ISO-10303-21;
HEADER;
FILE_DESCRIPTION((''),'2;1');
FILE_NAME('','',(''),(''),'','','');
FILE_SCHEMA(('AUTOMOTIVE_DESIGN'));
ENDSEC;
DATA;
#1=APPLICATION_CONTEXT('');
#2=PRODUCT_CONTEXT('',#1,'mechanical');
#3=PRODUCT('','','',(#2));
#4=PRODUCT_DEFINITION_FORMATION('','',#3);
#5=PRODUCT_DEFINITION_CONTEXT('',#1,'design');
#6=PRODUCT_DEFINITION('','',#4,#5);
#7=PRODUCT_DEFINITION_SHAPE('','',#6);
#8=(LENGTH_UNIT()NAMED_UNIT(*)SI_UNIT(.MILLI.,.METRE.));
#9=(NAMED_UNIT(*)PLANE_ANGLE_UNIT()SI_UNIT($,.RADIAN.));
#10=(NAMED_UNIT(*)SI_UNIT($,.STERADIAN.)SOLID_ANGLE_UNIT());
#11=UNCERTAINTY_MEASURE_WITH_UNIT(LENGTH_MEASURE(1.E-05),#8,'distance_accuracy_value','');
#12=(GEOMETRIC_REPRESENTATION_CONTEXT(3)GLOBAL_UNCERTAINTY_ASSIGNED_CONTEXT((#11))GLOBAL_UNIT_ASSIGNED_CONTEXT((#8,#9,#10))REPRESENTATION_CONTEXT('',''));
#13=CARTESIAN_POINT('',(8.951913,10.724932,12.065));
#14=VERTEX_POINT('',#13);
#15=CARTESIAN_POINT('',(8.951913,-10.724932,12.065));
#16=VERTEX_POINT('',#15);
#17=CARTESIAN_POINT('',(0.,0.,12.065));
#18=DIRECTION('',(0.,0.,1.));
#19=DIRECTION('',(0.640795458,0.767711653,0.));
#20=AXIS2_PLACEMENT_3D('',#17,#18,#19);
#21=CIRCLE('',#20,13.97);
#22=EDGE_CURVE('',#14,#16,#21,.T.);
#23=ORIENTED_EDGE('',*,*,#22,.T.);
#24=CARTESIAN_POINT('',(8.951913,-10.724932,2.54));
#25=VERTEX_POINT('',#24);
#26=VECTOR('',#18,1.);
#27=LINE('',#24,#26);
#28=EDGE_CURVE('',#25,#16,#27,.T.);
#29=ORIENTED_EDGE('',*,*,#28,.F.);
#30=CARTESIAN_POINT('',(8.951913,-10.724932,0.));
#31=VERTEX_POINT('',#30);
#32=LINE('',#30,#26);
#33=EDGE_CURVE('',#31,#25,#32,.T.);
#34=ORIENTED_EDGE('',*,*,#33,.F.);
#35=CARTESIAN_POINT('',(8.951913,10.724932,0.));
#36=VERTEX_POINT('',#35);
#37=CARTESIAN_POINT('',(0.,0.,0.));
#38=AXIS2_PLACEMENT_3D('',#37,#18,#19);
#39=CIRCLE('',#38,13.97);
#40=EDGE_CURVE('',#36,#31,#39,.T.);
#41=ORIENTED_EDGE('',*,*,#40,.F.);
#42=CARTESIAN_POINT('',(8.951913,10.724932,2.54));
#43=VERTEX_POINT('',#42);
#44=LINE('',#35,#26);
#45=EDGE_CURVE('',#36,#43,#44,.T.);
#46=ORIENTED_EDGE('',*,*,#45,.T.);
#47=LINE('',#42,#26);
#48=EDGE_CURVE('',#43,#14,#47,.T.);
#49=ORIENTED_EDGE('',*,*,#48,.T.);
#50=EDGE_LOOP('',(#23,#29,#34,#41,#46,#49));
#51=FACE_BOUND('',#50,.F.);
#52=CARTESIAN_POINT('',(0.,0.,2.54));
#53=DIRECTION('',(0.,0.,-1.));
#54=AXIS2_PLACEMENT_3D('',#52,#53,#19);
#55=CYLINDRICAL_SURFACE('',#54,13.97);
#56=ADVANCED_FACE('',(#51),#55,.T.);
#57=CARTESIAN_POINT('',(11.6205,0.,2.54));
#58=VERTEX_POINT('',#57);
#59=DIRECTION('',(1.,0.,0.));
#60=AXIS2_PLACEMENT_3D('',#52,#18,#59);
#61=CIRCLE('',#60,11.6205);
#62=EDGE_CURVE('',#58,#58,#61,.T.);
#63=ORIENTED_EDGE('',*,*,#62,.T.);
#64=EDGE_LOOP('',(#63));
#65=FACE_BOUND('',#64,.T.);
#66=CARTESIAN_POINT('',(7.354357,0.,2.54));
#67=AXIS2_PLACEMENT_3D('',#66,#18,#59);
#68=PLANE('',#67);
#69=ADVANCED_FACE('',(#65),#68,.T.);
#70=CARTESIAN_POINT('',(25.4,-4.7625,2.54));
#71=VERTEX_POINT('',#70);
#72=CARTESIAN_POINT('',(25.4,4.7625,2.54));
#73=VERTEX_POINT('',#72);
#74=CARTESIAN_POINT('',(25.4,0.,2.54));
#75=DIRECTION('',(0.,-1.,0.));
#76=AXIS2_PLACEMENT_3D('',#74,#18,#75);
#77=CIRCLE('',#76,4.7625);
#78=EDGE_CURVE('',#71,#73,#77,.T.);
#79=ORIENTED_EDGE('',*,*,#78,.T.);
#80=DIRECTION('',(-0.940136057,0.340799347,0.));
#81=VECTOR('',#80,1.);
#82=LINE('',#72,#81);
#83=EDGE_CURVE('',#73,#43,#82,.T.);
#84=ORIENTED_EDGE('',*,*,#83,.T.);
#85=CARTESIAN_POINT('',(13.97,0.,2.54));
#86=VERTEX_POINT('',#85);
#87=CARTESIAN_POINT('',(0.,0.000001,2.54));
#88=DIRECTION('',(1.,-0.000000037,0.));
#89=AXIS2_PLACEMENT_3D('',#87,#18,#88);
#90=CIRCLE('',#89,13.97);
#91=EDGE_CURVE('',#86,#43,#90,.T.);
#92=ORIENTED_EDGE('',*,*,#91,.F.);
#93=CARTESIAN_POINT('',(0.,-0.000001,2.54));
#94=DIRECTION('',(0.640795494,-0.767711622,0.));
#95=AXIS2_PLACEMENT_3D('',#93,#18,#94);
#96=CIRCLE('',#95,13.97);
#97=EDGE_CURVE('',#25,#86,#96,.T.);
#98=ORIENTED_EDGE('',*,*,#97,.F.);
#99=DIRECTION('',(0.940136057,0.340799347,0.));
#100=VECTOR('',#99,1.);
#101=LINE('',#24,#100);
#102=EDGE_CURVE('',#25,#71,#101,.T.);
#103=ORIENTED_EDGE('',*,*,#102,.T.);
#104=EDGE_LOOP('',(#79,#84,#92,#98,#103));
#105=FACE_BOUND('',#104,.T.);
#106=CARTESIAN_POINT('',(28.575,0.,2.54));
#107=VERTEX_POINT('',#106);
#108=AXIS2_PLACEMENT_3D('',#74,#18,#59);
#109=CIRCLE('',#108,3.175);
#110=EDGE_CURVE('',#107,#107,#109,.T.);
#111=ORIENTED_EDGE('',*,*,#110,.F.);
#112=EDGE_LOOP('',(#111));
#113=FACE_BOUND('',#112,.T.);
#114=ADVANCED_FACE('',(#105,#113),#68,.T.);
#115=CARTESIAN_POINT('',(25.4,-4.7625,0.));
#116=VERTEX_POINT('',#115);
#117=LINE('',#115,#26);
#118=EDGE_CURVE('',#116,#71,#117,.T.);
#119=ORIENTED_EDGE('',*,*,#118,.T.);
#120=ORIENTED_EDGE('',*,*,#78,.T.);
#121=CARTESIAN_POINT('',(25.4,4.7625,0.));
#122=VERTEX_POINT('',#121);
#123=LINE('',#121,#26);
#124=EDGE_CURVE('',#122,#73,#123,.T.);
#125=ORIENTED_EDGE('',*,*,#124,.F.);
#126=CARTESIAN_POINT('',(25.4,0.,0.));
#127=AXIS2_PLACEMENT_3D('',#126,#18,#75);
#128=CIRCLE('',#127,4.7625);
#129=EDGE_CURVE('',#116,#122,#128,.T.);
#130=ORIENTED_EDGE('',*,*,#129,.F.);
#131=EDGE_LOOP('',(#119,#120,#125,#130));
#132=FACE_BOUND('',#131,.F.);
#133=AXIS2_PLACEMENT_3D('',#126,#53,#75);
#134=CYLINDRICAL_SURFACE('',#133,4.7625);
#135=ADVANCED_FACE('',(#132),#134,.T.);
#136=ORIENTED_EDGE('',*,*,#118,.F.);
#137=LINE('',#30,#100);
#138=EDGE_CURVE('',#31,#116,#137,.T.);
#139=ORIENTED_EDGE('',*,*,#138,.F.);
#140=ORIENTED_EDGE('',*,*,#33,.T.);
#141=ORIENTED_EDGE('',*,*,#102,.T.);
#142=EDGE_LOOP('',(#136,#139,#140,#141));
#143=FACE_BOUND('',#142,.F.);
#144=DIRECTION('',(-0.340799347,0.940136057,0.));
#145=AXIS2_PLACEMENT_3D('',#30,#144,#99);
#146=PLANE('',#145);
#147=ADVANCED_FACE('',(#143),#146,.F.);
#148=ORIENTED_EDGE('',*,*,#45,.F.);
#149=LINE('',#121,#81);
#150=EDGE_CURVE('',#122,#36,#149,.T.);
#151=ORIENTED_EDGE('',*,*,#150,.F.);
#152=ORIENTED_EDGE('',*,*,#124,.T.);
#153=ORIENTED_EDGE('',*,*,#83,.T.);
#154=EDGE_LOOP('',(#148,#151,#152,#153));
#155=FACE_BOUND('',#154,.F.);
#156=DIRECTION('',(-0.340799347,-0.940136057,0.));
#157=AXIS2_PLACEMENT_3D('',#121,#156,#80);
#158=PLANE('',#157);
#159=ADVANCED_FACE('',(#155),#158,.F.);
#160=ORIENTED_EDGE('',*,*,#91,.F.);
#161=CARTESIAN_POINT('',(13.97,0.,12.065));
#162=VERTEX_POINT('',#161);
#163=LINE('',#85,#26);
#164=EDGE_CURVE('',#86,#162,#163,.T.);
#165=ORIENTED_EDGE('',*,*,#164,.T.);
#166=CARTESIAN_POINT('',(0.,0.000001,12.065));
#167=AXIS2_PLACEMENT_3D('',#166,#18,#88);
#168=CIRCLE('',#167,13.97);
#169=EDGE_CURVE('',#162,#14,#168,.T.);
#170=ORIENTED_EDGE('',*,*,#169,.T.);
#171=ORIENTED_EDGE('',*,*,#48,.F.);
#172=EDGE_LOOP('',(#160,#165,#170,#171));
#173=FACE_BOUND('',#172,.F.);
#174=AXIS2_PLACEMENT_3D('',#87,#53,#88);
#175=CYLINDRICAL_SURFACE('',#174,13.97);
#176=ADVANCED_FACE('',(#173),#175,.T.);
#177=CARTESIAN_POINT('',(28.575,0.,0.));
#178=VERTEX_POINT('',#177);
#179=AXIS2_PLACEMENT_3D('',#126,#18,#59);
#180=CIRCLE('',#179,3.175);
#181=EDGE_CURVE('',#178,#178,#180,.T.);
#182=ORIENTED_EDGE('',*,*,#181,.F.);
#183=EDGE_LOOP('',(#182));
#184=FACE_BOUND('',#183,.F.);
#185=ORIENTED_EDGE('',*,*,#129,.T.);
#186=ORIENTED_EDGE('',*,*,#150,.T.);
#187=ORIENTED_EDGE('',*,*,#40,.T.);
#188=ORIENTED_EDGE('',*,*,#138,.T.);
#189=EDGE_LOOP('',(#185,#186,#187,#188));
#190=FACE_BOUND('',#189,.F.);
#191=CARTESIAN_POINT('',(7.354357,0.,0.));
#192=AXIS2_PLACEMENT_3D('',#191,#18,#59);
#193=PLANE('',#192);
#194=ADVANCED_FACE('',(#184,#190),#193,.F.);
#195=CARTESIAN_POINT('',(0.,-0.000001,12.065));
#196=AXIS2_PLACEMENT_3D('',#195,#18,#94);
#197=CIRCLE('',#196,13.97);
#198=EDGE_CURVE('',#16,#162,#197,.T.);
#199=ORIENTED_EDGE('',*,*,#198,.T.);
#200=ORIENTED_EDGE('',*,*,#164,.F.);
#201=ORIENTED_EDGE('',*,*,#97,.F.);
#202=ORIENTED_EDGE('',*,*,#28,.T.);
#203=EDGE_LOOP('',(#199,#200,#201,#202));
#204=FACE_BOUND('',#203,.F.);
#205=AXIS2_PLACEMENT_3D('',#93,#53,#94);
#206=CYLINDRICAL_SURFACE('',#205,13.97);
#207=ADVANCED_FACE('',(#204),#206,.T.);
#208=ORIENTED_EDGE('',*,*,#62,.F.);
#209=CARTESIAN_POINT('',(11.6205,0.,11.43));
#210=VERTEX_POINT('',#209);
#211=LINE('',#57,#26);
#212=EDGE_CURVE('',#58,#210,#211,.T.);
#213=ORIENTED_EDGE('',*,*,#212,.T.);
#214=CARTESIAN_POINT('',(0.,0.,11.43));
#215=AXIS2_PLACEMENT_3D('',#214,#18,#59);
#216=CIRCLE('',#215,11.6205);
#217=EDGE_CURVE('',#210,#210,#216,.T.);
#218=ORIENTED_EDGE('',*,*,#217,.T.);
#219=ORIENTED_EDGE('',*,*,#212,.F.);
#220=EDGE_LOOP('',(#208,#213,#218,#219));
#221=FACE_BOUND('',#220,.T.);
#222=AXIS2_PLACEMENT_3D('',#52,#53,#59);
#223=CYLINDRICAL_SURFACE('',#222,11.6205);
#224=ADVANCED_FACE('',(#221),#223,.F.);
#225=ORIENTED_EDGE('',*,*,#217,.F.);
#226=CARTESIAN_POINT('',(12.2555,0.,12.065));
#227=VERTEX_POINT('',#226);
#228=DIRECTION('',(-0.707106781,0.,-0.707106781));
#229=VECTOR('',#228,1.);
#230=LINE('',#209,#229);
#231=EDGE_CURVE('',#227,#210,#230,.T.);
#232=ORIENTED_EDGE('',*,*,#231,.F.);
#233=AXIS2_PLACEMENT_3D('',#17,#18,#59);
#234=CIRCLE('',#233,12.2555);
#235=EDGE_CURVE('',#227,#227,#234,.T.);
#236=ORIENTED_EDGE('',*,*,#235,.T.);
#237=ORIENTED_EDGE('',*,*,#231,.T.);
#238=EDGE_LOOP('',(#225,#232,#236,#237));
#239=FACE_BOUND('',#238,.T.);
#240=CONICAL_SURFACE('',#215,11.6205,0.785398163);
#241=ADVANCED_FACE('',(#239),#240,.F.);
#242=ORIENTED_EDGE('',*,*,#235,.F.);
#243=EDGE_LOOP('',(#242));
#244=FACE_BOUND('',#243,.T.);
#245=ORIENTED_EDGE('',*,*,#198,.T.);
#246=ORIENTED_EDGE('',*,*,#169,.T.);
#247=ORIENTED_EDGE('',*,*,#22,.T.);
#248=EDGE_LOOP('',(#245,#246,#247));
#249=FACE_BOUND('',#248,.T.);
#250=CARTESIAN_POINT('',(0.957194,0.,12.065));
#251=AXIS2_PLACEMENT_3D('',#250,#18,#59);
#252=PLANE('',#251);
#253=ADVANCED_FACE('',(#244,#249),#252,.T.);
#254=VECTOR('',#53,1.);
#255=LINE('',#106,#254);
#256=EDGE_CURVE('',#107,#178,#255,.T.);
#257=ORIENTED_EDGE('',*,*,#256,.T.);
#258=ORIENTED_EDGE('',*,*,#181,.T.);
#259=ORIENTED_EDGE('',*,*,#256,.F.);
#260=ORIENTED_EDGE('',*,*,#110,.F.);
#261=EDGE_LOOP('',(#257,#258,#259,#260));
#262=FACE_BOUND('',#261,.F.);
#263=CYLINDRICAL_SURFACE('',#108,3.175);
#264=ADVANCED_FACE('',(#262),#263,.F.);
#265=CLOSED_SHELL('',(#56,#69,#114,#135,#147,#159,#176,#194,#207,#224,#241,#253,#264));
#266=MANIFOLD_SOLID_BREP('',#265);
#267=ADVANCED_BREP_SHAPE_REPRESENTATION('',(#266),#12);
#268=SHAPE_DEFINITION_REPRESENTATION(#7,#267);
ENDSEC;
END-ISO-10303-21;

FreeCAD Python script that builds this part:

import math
import FreeCAD as App
import Part
import Sketcher

V = App.Vector
Q = App.Units.Quantity


def edges_at(feature, points):
    """Names of the edges that pass closest to the given points."""
    edges = feature.Shape.Edges
    near = lambda p: min(range(len(edges)), key=lambda i: edges[i].distToShape(Part.Vertex(*p))[0])
    return sorted({f"Edge{near(p) + 1}" for p in points})

doc = App.newDocument("Part")
params = doc.addObject("Spreadsheet::Sheet", "Params")
for row, (alias, value) in enumerate([
    ("sketch1_radius", "0.55 in"),
    ("sketch1_radius2", "0.1875 in"),
    ("pad1_length", "0.1 in"),
    ("sketch2_radius", "0.55 in"),
    ("sketch2_diameter", "0.915 in"),
    ("pad2_length", "0.375 in"),
    ("chamfer_size", "0.025 in"),
    ("sketch3_diameter", "0.25 in"),
], start=1):
    params.set(f"A{row}", alias)
    params.set(f"B{row}", "=" + value)
    params.setAlias(f"B{row}", alias)

body = doc.addObject("PartDesign::Body", "Body")

sketch1 = doc.addObject("Sketcher::SketchObject", "Sketch")
body.addObject(sketch1)
sketch1.AttachmentSupport = (doc.XY_Plane, [""])
sketch1.MapMode = "FlatFace"
sketch1.addGeometry(Part.LineSegment(V(25.4, 4.7625, 0), V(8.951913, 10.724932, 0)), False)
sketch1.addGeometry(Part.ArcOfCircle(Part.Circle(V(0, 0, 0), V(0, 0, 1), 13.97), math.radians(50.14884), math.radians(309.85116)), False)
sketch1.addGeometry(Part.LineSegment(V(8.951913, -10.724932, 0), V(25.4, -4.7625, 0)), False)
sketch1.addGeometry(Part.ArcOfCircle(Part.Circle(V(25.4, 0, 0), V(0, 0, 1), 4.7625), math.radians(-90), math.radians(90)), False)
sketch1.addConstraint(Sketcher.Constraint("Coincident", 0, 2, 1, 1))
sketch1.addConstraint(Sketcher.Constraint("Coincident", 1, 2, 2, 1))
sketch1.addConstraint(Sketcher.Constraint("Coincident", 2, 2, 3, 1))
sketch1.addConstraint(Sketcher.Constraint("Coincident", 3, 2, 0, 1))
sketch1.addConstraint(Sketcher.Constraint("Coincident", 1, 3, -1, 1))
sketch1.addConstraint(Sketcher.Constraint("Symmetric", 2, 2, 3, 2, -1))
sketch1.addConstraint(Sketcher.Constraint("Vertical", 0, 2, 1, 2))
sketch1.addConstraint(Sketcher.Constraint("Vertical", 3, 3, 2, 2))
sketch1.addConstraint(Sketcher.Constraint("Radius", 1, Q("0.55 in")))
sketch1.addConstraint(Sketcher.Constraint("DistanceX", -1, 1, 3, 3, Q("1 in")))
sketch1.addConstraint(Sketcher.Constraint("Radius", 3, Q("0.1875 in")))
sketch1.addConstraint(Sketcher.Constraint("DistanceY", 1, 2, -1, 1, 10.724932))
sketch1.setExpression("Constraints[8]", "Params.sketch1_radius")
sketch1.setExpression("Constraints[10]", "Params.sketch1_radius2")
pad1 = doc.addObject("PartDesign::Pad", "Pad")
body.addObject(pad1)
pad1.Profile = sketch1
pad1.setExpression("Length", "Params.pad1_length")

sketch2 = doc.addObject("Sketcher::SketchObject", "Sketch001")
body.addObject(sketch2)
sketch2.AttachmentSupport = (doc.XY_Plane, [""])
sketch2.MapMode = "FlatFace"
sketch2.AttachmentOffset = App.Placement(V(0, 0, 0.1 * 25.4), App.Rotation())
sketch2.addGeometry(Part.ArcOfCircle(Part.Circle(V(0, -0.000001, 0), V(0, 0, 1), 13.97), math.radians(-50.148837), math.radians(0.000002)), False)
sketch2.addGeometry(Part.ArcOfCircle(Part.Circle(V(0, 0.000001, 0), V(0, 0, 1), 13.97), math.radians(-0.000002), math.radians(50.148837)), False)
sketch2.addGeometry(Part.ArcOfCircle(Part.Circle(V(0, 0, 0), V(0, 0, 1), 13.97), math.radians(50.14884), math.radians(309.85116)), False)
sketch2.addGeometry(Part.Circle(V(0, 0, 0), V(0, 0, 1), 11.6205), False)
sketch2.addConstraint(Sketcher.Constraint("Tangent", 0, 2, 1, 1))
sketch2.addConstraint(Sketcher.Constraint("Tangent", 1, 2, 2, 1))
sketch2.addConstraint(Sketcher.Constraint("Tangent", 2, 2, 0, 1))
sketch2.addConstraint(Sketcher.Constraint("Coincident", 0, 3, -1, 1))
sketch2.addConstraint(Sketcher.Constraint("Coincident", 3, 3, -1, 1))
sketch2.addConstraint(Sketcher.Constraint("PointOnObject", 0, 2, -1))
sketch2.addConstraint(Sketcher.Constraint("Vertical", 1, 2, 2, 2))
sketch2.addConstraint(Sketcher.Constraint("Radius", 0, Q("0.55 in")))
sketch2.addConstraint(Sketcher.Constraint("Diameter", 3, Q("0.915 in")))
sketch2.addConstraint(Sketcher.Constraint("DistanceY", -1, 1, 1, 2, 10.724932))
sketch2.setExpression("Constraints[7]", "Params.sketch2_radius")
sketch2.setExpression("Constraints[8]", "Params.sketch2_diameter")
pad2 = doc.addObject("PartDesign::Pad", "Pad001")
body.addObject(pad2)
pad2.Profile = sketch2
pad2.setExpression("Length", "Params.pad2_length")
doc.recompute()

chamfer = doc.addObject("PartDesign::Chamfer", "Chamfer")
body.addObject(chamfer)
chamfer.Base = (pad2, edges_at(pad2, [(-11.62, 0, 12.065)]))
chamfer.setExpression("Size", "Params.chamfer_size")

sketch3 = doc.addObject("Sketcher::SketchObject", "Sketch002")
body.addObject(sketch3)
sketch3.AttachmentSupport = (doc.XY_Plane, [""])
sketch3.MapMode = "FlatFace"
sketch3.AttachmentOffset = App.Placement(V(0, 0, 0.1 * 25.4), App.Rotation())
sketch3.addGeometry(Part.Circle(V(25.4, 0, 0), V(0, 0, 1), 3.175), False)
sketch3.addConstraint(Sketcher.Constraint("PointOnObject", 0, 3, -1))
sketch3.addConstraint(Sketcher.Constraint("Diameter", 0, Q("0.25 in")))
sketch3.addConstraint(Sketcher.Constraint("DistanceX", -1, 1, 0, 3, Q("1 in")))
sketch3.setExpression("Constraints[1]", "Params.sketch3_diameter")
pocket1 = doc.addObject("PartDesign::Pocket", "Pocket")
body.addObject(pocket1)
pocket1.Profile = sketch3
pocket1.Type = "ThroughAll"

doc.recompute()
